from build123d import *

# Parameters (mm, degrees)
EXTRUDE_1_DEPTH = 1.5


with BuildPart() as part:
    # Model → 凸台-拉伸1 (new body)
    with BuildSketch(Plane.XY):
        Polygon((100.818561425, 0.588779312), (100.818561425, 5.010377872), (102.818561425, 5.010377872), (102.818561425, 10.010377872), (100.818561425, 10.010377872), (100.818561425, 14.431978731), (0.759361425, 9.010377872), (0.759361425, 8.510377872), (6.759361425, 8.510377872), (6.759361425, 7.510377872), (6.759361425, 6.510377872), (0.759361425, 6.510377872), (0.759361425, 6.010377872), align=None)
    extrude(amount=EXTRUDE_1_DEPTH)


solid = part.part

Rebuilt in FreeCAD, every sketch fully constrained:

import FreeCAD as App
import Part
import Sketcher


def add_polygon(sketch, points):
    """Adds a closed chain of lines whose ends are joined by coincident constraints."""
    first, n = sketch.GeometryCount, len(points)
    for a, b in zip(points, points[1:] + points[:1]):
        sketch.addGeometry(Part.LineSegment(App.Vector(*a, 0), App.Vector(*b, 0)), False)
    for i in range(n):
        sketch.addConstraint(Sketcher.Constraint("Coincident", first + i, 2, first + (i + 1) % n, 1))

doc = App.newDocument("Part")
body = doc.addObject("PartDesign::Body", "Body")

# Sketch on XY plane
sketch1 = body.newObject("Sketcher::SketchObject", "Sketch")
sketch1.AttachmentSupport = (doc.getObject("XY_Plane"), [""])
sketch1.MapMode = "FlatFace"
add_polygon(sketch1, [(100.8, 0.6), (100.8, 5), (102.8, 5), (102.8, 10), (100.8, 10), (100.8, 14.4), (0.8, 9), (0.8, 8.5), (6.8, 8.5), (6.8, 6.5), (0.8, 6.5), (0.8, 6)])  # lines 0-11
sketch1.addConstraint([
    Sketcher.Constraint("Vertical", 0),
    Sketcher.Constraint("Horizontal", 1),
    Sketcher.Constraint("Vertical", 2),
    Sketcher.Constraint("Horizontal", 3),
    Sketcher.Constraint("Vertical", 4),
    Sketcher.Constraint("Vertical", 6),
    Sketcher.Constraint("Horizontal", 7),
    Sketcher.Constraint("Vertical", 8),
    Sketcher.Constraint("Horizontal", 9),
    Sketcher.Constraint("Vertical", 10),
    Sketcher.Constraint("Vertical", 0, 2, 3, 2),
    Sketcher.Constraint("Vertical", 6, 2, 9, 2),
    Sketcher.Constraint("Equal", 3, 8),
    Sketcher.Constraint("Equal", 6, 10),
    Sketcher.Constraint("Equal", 5, 11),
    Sketcher.Constraint("DistanceX", 1, 1, 1, 2, 2.0),
    Sketcher.Constraint("DistanceX", 7, 1, 7, 2, 6.0),
    Sketcher.Constraint("DistanceY", 2, 1, 2, 2, 5.0),
    Sketcher.Constraint("DistanceY", 6, 2, 6, 1, 0.5),
    Sketcher.Constraint("DistanceY", 5, 2, 3, 2, 1.0),
    Sketcher.Constraint("DistanceY", 0, 1, 0, 2, 4.421599),
    Sketcher.Constraint("DistanceX", 5, 2, 3, 2, 100.0592),
    Sketcher.Constraint("DistanceX", -1, 1, 0, 2, 100.818561),
    Sketcher.Constraint("DistanceY", -1, 1, 4, 2, 14.431979),
])
pad1 = body.newObject("PartDesign::Pad", "Pad")
pad1.Profile = sketch1
pad1.Length = 1.5

doc.recompute()
